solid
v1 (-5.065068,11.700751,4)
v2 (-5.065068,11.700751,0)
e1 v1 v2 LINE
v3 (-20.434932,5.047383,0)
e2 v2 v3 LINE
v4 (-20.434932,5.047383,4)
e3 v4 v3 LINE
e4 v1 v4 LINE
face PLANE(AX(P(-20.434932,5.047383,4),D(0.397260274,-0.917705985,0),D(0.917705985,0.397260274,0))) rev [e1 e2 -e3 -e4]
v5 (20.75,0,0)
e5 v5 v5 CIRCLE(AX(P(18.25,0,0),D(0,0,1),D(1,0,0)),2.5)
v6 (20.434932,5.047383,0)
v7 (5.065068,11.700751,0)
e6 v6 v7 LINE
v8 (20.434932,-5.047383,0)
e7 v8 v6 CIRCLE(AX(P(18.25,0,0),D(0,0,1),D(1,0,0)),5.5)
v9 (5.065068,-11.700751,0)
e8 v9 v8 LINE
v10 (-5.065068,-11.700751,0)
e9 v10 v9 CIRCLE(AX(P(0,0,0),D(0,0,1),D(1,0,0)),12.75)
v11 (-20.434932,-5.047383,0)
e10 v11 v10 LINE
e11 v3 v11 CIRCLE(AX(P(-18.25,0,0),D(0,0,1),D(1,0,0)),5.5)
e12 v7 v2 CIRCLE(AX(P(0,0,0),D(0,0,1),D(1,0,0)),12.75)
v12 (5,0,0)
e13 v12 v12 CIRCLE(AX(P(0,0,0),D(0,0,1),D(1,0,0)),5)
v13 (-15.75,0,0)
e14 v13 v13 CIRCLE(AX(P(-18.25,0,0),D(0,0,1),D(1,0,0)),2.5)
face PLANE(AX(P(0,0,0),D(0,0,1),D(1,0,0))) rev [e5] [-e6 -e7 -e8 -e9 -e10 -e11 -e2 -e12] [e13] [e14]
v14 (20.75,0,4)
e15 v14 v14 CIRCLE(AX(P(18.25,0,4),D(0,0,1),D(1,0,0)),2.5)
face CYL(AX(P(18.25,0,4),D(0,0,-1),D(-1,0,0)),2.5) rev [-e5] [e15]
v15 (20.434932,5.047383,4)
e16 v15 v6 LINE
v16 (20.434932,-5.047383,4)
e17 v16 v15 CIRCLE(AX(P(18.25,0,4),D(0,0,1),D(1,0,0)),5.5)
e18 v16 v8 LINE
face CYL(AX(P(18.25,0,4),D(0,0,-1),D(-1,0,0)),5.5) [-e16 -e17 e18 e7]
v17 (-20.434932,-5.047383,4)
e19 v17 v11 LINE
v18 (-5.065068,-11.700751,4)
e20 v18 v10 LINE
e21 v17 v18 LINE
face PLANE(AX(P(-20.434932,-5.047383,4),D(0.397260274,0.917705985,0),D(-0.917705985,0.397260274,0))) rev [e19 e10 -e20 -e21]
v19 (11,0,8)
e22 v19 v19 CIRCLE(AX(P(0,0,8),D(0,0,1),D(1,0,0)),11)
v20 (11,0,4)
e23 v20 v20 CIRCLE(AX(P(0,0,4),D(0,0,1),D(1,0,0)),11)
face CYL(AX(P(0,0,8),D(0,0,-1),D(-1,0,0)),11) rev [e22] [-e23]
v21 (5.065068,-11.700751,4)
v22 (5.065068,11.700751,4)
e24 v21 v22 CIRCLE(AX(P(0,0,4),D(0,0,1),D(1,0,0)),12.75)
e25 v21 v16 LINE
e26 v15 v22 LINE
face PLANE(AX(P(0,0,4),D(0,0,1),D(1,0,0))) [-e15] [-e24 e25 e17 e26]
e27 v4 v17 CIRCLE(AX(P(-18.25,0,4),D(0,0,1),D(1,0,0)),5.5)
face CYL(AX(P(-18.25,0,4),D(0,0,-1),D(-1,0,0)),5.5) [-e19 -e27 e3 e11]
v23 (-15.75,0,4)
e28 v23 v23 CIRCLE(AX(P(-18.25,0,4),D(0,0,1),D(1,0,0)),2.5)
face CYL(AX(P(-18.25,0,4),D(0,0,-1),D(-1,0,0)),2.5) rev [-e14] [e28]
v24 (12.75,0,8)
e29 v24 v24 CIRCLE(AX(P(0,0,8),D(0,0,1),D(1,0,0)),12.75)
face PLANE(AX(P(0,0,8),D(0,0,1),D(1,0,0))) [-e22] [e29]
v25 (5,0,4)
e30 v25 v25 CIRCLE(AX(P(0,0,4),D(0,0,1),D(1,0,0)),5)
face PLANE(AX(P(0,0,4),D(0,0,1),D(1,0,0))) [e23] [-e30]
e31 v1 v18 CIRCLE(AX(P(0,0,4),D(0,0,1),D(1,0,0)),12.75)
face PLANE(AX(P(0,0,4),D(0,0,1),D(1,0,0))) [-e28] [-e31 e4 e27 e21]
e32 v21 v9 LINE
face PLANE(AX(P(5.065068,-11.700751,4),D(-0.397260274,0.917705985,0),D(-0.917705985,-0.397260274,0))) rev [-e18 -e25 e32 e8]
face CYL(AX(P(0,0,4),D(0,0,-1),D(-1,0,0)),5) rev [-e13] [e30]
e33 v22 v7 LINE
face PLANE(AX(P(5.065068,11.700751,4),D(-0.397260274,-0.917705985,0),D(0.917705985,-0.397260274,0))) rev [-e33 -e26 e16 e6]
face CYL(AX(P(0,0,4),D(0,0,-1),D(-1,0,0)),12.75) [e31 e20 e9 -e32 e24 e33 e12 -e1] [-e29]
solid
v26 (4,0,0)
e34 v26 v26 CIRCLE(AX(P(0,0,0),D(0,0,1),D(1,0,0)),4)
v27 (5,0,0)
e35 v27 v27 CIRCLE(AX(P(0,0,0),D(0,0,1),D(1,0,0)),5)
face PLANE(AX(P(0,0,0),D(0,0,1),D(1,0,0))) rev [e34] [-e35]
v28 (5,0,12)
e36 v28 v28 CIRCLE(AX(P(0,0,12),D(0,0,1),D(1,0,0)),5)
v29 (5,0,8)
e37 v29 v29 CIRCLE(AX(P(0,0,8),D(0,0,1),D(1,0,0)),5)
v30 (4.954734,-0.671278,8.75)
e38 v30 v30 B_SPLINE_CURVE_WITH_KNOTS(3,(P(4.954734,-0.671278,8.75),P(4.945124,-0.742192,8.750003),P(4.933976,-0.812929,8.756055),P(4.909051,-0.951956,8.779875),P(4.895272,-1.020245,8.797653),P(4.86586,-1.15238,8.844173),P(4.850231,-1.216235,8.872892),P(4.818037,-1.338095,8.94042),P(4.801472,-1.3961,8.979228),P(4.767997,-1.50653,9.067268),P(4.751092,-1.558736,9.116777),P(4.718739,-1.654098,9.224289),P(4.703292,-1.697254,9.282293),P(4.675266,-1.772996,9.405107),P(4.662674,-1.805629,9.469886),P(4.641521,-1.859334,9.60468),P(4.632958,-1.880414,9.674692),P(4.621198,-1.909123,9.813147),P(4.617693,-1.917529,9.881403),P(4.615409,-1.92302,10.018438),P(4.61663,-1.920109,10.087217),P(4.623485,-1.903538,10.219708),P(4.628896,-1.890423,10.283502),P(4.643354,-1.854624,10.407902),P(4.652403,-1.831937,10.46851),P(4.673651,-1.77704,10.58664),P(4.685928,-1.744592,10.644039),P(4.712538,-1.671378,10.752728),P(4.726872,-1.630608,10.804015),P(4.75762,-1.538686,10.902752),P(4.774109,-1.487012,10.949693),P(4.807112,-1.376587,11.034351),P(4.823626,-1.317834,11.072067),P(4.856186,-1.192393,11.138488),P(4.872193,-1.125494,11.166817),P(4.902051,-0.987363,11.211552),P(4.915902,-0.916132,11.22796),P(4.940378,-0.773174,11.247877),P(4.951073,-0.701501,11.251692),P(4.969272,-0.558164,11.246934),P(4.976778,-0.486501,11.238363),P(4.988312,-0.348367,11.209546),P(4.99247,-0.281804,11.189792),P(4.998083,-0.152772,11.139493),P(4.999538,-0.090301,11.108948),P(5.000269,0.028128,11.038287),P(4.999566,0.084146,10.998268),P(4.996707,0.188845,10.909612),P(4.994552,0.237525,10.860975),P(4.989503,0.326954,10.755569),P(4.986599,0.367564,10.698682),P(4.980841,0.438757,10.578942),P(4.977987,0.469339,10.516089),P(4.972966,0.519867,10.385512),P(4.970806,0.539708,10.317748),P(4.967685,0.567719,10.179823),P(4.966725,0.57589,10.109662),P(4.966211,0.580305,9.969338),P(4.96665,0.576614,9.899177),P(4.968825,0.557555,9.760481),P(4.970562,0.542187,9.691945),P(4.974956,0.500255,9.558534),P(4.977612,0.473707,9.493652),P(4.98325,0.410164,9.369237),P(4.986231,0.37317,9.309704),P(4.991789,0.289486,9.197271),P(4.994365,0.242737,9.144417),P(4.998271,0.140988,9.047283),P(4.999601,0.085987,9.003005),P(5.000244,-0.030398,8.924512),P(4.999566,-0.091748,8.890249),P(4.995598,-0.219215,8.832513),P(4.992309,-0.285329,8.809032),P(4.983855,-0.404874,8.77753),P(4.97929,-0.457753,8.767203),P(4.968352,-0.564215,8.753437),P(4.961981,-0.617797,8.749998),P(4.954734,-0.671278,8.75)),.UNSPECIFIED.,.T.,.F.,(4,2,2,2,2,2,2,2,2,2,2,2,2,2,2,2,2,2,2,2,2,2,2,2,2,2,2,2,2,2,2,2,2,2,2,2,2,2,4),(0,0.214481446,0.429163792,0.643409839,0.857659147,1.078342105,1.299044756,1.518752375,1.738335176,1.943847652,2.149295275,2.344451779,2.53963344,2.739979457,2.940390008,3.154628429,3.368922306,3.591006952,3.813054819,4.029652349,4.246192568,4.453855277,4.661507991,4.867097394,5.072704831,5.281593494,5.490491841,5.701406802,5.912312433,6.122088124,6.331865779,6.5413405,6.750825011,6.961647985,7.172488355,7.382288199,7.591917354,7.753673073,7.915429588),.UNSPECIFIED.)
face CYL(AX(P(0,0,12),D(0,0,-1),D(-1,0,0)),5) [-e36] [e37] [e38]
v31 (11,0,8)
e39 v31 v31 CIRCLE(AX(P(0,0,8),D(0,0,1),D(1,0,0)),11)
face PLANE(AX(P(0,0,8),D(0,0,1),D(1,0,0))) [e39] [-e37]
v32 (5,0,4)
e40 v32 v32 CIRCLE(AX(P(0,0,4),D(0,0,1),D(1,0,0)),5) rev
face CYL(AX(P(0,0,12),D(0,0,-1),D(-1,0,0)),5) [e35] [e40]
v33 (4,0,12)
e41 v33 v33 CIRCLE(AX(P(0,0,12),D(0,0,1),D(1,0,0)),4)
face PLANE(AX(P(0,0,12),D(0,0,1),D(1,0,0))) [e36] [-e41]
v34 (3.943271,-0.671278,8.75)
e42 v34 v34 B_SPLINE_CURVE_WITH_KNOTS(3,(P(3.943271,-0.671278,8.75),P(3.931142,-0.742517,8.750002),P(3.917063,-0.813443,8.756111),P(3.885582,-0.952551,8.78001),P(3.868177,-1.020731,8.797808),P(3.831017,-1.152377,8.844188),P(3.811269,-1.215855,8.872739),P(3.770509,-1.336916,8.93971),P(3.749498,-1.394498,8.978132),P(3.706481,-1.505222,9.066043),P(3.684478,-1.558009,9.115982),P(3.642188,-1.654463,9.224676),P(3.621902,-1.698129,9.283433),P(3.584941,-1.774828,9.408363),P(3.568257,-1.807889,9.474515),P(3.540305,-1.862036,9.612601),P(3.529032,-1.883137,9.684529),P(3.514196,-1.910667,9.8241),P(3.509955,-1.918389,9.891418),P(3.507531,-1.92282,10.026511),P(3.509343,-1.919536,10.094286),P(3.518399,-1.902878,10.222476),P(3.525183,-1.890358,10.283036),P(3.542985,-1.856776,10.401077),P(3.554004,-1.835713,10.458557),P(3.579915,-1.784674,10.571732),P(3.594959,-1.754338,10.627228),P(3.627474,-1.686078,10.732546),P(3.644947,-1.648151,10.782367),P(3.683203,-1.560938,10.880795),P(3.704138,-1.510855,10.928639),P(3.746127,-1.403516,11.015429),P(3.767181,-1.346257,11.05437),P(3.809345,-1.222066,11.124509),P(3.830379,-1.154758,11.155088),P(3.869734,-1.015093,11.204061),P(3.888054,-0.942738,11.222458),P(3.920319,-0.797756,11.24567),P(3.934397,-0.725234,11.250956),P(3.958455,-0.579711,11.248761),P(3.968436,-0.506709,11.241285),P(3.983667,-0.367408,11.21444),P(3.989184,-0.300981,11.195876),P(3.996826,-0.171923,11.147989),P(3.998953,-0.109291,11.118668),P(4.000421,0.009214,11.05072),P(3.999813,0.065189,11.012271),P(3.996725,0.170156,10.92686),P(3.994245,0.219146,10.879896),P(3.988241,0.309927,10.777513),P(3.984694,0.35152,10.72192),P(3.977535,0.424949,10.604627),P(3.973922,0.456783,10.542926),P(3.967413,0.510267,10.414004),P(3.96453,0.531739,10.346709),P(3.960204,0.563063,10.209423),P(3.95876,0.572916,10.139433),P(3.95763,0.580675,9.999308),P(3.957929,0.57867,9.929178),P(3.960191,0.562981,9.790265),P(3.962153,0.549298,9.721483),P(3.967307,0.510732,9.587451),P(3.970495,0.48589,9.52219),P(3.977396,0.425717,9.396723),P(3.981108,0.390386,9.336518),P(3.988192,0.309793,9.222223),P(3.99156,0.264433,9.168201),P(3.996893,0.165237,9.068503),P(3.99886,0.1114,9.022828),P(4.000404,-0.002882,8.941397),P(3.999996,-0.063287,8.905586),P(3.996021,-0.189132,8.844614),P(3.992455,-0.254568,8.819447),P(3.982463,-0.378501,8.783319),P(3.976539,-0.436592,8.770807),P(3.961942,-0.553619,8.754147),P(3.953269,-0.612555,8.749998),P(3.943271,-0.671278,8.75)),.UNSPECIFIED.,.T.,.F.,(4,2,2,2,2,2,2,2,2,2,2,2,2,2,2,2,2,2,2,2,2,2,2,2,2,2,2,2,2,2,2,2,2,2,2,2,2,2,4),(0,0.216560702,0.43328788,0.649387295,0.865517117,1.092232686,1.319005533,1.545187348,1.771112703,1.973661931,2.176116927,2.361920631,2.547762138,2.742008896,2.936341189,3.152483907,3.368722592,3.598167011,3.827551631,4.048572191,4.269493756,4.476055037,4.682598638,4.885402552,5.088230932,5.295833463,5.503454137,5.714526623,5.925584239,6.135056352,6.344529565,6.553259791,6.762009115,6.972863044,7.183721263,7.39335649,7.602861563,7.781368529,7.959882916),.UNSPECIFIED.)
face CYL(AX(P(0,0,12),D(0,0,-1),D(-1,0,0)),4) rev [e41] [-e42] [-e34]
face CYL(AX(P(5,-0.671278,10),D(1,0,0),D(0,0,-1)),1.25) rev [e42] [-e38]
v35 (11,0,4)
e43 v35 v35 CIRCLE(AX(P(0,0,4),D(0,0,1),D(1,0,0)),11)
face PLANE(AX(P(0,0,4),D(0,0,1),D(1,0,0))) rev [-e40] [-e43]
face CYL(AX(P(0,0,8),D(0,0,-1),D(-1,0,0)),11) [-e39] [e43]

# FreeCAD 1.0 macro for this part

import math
import FreeCAD as App
import Part
import Sketcher

V = App.Vector
Q = App.Units.Quantity

doc = App.newDocument("Part")
body = doc.addObject("PartDesign::Body", "Body")

# Sketch on XY plane
sketch1 = body.newObject("Sketcher::SketchObject", "Sketch")
sketch1.AttachmentSupport = (doc.getObject("XY_Plane"), [""])
sketch1.MapMode = "FlatFace"
sketch1.addGeometry(Part.LineSegment(V(-20.4, -5, 0), V(-5.1, -11.7, 0)), False)
sketch1.addGeometry(Part.ArcOfCircle(Part.Circle(V(0, 0, 0), V(0, 0, 1), 12.7), math.radians(-113), math.radians(-67)), False)
sketch1.addGeometry(Part.LineSegment(V(5.1, -11.7, 0), V(20.4, -5, 0)), False)
sketch1.addGeometry(Part.ArcOfCircle(Part.Circle(V(18.2, 0, 0), V(0, 0, 1), 5.5), math.radians(-67), math.radians(67)), False)
sketch1.addGeometry(Part.LineSegment(V(20.4, 5, 0), V(5.1, 11.7, 0)), False)
sketch1.addGeometry(Part.ArcOfCircle(Part.Circle(V(0, 0, 0), V(0, 0, 1), 12.7), math.radians(67), math.radians(113)), False)
sketch1.addGeometry(Part.LineSegment(V(-5.1, 11.7, 0), V(-20.4, 5, 0)), False)
sketch1.addGeometry(Part.ArcOfCircle(Part.Circle(V(-18.2, 0, 0), V(0, 0, 1), 5.5), math.radians(113), math.radians(247)), False)
sketch1.addGeometry(Part.Circle(V(-18.2, 0, 0), V(0, 0, 1), 2.5), False)
sketch1.addGeometry(Part.Circle(V(0, 0, 0), V(0, 0, 1), 5), False)
sketch1.addGeometry(Part.Circle(V(18.2, 0, 0), V(0, 0, 1), 2.5), False)
sketch1.addConstraint(Sketcher.Constraint("Tangent", 0, 2, 1, 1))
sketch1.addConstraint(Sketcher.Constraint("Tangent", 1, 2, 2, 1))
sketch1.addConstraint(Sketcher.Constraint("Tangent", 2, 2, 3, 1))
sketch1.addConstraint(Sketcher.Constraint("Tangent", 3, 2, 4, 1))
sketch1.addConstraint(Sketcher.Constraint("Tangent", 4, 2, 5, 1))
sketch1.addConstraint(Sketcher.Constraint("Tangent", 5, 2, 6, 1))
sketch1.addConstraint(Sketcher.Constraint("Tangent", 6, 2, 7, 1))
sketch1.addConstraint(Sketcher.Constraint("Tangent", 7, 2, 0, 1))
sketch1.addConstraint(Sketcher.Constraint("Coincident", 1, 3, -1, 1))
sketch1.addConstraint(Sketcher.Constraint("Coincident", 5, 3, -1, 1))
sketch1.addConstraint(Sketcher.Constraint("Coincident", 9, 3, -1, 1))
sketch1.addConstraint(Sketcher.Constraint("Coincident", 8, 3, 7, 3))
sketch1.addConstraint(Sketcher.Constraint("Coincident", 10, 3, 3, 3))
sketch1.addConstraint(Sketcher.Constraint("Equal", 1, 5))
sketch1.addConstraint(Sketcher.Constraint("Equal", 3, 7))
sketch1.addConstraint(Sketcher.Constraint("Equal", 8, 10))
sketch1.addConstraint(Sketcher.Constraint("Symmetric", 3, 3, 7, 3, -1, 1))
sketch1.addConstraint(Sketcher.Constraint("PointOnObject", 3, 3, -1))
sketch1.addConstraint(Sketcher.Constraint("Diameter", 8, Q("5 mm")))
sketch1.addConstraint(Sketcher.Constraint("Diameter", 9, Q("10 mm")))
sketch1.addConstraint(Sketcher.Constraint("Radius", 3, Q("5.5 mm")))
sketch1.addConstraint(Sketcher.Constraint("Radius", 1, Q("12.75 mm")))
sketch1.addConstraint(Sketcher.Constraint("DistanceX", 7, 3, 3, 3, Q("36.5 mm")))
pad1 = body.newObject("PartDesign::Pad", "Pad")
pad1.Profile = sketch1
pad1.Length = 4

# Sketch on XY plane
sketch2 = body.newObject("Sketcher::SketchObject", "Sketch001")
sketch2.AttachmentSupport = (doc.getObject("XY_Plane"), [""])
sketch2.MapMode = "FlatFace"
sketch2.AttachmentOffset = App.Placement(V(0, 0, 4), App.Rotation())
sketch2.addGeometry(Part.Circle(V(0, 0, 0), V(0, 0, 1), 13), False)
sketch2.addGeometry(Part.Circle(V(0, 0, 0), V(0, 0, 1), 11), False)
sketch2.addConstraint(Sketcher.Constraint("Coincident", 0, 3, -1, 1))
sketch2.addConstraint(Sketcher.Constraint("Coincident", 1, 3, -1, 1))
sketch2.addConstraint(Sketcher.Constraint("Diameter", 1, Q("22 mm")))
sketch2.addConstraint(Sketcher.Constraint("Diameter", 0, Q("25.5 mm")))
pad2 = body.newObject("PartDesign::Pad", "Pad001")
pad2.Profile = sketch2
pad2.Length = 4
body2 = doc.addObject("PartDesign::Body", "Body001")

# Sketch on XY plane
sketch3 = body2.newObject("Sketcher::SketchObject", "Sketch002")
sketch3.AttachmentSupport = (doc.getObject("XY_Plane001"), [""])
sketch3.MapMode = "FlatFace"
sketch3.AttachmentOffset = App.Placement(V(0, 0, 4), App.Rotation())
sketch3.addGeometry(Part.Circle(V(0, 0, 0), V(0, 0, 1), 11), False)
sketch3.addGeometry(Part.Circle(V(0, 0, 0), V(0, 0, 1), 5), False)
sketch3.addConstraint(Sketcher.Constraint("Coincident", 0, 3, -1, 1))
sketch3.addConstraint(Sketcher.Constraint("Coincident", 1, 3, -1, 1))
sketch3.addConstraint(Sketcher.Constraint("Diameter", 0, Q("22 mm")))
sketch3.addConstraint(Sketcher.Constraint("Diameter", 1, Q("10 mm")))
pad3 = body2.newObject("PartDesign::Pad", "Pad002")
pad3.Profile = sketch3
pad3.Length = 4
body3 = doc.addObject("PartDesign::Body", "Body002")

# Sketch on XY plane
sketch4 = body3.newObject("Sketcher::SketchObject", "Sketch003")
sketch4.AttachmentSupport = (doc.getObject("XY_Plane002"), [""])
sketch4.MapMode = "FlatFace"
sketch4.addGeometry(Part.Circle(V(0, 0, 0), V(0, 0, 1), 5), False)
sketch4.addGeometry(Part.Circle(V(0, 0, 0), V(0, 0, 1), 4), False)
sketch4.addConstraint(Sketcher.Constraint("Coincident", 0, 3, -1, 1))
sketch4.addConstraint(Sketcher.Constraint("Coincident", 1, 3, -1, 1))
sketch4.addConstraint(Sketcher.Constraint("Diameter", 0, Q("10 mm")))
sketch4.addConstraint(Sketcher.Constraint("Diameter", 1, Q("8 mm")))
pad4 = body3.newObject("PartDesign::Pad", "Pad003")
pad4.Profile = sketch4
pad4.Length = 12
doc.recompute()

boolean = body2.newObject("PartDesign::Boolean", "Boolean")
boolean.Type = "Fuse"
boolean.addObjects([body3])

# Sketch on XZ plane
sketch5 = body2.newObject("Sketcher::SketchObject", "Sketch004")
sketch5.AttachmentSupport = (doc.getObject("XZ_Plane001"), [""])
sketch5.MapMode = "FlatFace"
sketch5.AttachmentOffset = App.Placement(V(0, 0, 0.671278), App.Rotation())
sketch5.addGeometry(Part.LineSegment(V(-1.3, 10, 0), V(5, 10, 0)), False)
sketch5.addGeometry(Part.LineSegment(V(5, 10, 0), V(5, 8.8, 0)), False)
sketch5.addGeometry(Part.LineSegment(V(5, 8.8, 0), V(-0.5, 8.8, 0)), False)
sketch5.addGeometry(Part.LineSegment(V(-0.5, 8.8, 0), V(-1.3, 10, 0)), False)
sketch5.addGeometry(Part.LineSegment(V(5, 10, 0), V(-1.3, 10, 0)), True)  # axis
sketch5.addConstraint(Sketcher.Constraint("Coincident", 0, 2, 1, 1))
sketch5.addConstraint(Sketcher.Constraint("Coincident", 1, 2, 2, 1))
sketch5.addConstraint(Sketcher.Constraint("Coincident", 2, 2, 3, 1))
sketch5.addConstraint(Sketcher.Constraint("Coincident", 3, 2, 0, 1))
sketch5.addConstraint(Sketcher.Constraint("Horizontal", 0))
sketch5.addConstraint(Sketcher.Constraint("Vertical", 1))
sketch5.addConstraint(Sketcher.Constraint("Horizontal", 2))
sketch5.addConstraint(Sketcher.Constraint("Horizontal", 4))
sketch5.addConstraint(Sketcher.Constraint("Coincident", 4, 1, 0, 2))
sketch5.addConstraint(Sketcher.Constraint("Equal", 0, 4))
sketch5.addConstraint(Sketcher.Constraint("Angle", 3, Q("121 deg")))
sketch5.addConstraint(Sketcher.Constraint("DistanceX", 2, 2, 2, 1, Q("5.5 mm")))
sketch5.addConstraint(Sketcher.Constraint("DistanceX", -1, 1, 0, 2, Q("5 mm")))
sketch5.addConstraint(Sketcher.Constraint("DistanceY", -1, 1, 0, 2, Q("10 mm")))
sketch5.addConstraint(Sketcher.Constraint("DistanceY", 1, 2, 1, 1, Q("1.25 mm")))
groove = body2.newObject("PartDesign::Groove", "Groove")
groove.Profile = sketch5
groove.ReferenceAxis = (sketch5, ["Axis0"])
groove.Angle = 360

doc.recompute()
